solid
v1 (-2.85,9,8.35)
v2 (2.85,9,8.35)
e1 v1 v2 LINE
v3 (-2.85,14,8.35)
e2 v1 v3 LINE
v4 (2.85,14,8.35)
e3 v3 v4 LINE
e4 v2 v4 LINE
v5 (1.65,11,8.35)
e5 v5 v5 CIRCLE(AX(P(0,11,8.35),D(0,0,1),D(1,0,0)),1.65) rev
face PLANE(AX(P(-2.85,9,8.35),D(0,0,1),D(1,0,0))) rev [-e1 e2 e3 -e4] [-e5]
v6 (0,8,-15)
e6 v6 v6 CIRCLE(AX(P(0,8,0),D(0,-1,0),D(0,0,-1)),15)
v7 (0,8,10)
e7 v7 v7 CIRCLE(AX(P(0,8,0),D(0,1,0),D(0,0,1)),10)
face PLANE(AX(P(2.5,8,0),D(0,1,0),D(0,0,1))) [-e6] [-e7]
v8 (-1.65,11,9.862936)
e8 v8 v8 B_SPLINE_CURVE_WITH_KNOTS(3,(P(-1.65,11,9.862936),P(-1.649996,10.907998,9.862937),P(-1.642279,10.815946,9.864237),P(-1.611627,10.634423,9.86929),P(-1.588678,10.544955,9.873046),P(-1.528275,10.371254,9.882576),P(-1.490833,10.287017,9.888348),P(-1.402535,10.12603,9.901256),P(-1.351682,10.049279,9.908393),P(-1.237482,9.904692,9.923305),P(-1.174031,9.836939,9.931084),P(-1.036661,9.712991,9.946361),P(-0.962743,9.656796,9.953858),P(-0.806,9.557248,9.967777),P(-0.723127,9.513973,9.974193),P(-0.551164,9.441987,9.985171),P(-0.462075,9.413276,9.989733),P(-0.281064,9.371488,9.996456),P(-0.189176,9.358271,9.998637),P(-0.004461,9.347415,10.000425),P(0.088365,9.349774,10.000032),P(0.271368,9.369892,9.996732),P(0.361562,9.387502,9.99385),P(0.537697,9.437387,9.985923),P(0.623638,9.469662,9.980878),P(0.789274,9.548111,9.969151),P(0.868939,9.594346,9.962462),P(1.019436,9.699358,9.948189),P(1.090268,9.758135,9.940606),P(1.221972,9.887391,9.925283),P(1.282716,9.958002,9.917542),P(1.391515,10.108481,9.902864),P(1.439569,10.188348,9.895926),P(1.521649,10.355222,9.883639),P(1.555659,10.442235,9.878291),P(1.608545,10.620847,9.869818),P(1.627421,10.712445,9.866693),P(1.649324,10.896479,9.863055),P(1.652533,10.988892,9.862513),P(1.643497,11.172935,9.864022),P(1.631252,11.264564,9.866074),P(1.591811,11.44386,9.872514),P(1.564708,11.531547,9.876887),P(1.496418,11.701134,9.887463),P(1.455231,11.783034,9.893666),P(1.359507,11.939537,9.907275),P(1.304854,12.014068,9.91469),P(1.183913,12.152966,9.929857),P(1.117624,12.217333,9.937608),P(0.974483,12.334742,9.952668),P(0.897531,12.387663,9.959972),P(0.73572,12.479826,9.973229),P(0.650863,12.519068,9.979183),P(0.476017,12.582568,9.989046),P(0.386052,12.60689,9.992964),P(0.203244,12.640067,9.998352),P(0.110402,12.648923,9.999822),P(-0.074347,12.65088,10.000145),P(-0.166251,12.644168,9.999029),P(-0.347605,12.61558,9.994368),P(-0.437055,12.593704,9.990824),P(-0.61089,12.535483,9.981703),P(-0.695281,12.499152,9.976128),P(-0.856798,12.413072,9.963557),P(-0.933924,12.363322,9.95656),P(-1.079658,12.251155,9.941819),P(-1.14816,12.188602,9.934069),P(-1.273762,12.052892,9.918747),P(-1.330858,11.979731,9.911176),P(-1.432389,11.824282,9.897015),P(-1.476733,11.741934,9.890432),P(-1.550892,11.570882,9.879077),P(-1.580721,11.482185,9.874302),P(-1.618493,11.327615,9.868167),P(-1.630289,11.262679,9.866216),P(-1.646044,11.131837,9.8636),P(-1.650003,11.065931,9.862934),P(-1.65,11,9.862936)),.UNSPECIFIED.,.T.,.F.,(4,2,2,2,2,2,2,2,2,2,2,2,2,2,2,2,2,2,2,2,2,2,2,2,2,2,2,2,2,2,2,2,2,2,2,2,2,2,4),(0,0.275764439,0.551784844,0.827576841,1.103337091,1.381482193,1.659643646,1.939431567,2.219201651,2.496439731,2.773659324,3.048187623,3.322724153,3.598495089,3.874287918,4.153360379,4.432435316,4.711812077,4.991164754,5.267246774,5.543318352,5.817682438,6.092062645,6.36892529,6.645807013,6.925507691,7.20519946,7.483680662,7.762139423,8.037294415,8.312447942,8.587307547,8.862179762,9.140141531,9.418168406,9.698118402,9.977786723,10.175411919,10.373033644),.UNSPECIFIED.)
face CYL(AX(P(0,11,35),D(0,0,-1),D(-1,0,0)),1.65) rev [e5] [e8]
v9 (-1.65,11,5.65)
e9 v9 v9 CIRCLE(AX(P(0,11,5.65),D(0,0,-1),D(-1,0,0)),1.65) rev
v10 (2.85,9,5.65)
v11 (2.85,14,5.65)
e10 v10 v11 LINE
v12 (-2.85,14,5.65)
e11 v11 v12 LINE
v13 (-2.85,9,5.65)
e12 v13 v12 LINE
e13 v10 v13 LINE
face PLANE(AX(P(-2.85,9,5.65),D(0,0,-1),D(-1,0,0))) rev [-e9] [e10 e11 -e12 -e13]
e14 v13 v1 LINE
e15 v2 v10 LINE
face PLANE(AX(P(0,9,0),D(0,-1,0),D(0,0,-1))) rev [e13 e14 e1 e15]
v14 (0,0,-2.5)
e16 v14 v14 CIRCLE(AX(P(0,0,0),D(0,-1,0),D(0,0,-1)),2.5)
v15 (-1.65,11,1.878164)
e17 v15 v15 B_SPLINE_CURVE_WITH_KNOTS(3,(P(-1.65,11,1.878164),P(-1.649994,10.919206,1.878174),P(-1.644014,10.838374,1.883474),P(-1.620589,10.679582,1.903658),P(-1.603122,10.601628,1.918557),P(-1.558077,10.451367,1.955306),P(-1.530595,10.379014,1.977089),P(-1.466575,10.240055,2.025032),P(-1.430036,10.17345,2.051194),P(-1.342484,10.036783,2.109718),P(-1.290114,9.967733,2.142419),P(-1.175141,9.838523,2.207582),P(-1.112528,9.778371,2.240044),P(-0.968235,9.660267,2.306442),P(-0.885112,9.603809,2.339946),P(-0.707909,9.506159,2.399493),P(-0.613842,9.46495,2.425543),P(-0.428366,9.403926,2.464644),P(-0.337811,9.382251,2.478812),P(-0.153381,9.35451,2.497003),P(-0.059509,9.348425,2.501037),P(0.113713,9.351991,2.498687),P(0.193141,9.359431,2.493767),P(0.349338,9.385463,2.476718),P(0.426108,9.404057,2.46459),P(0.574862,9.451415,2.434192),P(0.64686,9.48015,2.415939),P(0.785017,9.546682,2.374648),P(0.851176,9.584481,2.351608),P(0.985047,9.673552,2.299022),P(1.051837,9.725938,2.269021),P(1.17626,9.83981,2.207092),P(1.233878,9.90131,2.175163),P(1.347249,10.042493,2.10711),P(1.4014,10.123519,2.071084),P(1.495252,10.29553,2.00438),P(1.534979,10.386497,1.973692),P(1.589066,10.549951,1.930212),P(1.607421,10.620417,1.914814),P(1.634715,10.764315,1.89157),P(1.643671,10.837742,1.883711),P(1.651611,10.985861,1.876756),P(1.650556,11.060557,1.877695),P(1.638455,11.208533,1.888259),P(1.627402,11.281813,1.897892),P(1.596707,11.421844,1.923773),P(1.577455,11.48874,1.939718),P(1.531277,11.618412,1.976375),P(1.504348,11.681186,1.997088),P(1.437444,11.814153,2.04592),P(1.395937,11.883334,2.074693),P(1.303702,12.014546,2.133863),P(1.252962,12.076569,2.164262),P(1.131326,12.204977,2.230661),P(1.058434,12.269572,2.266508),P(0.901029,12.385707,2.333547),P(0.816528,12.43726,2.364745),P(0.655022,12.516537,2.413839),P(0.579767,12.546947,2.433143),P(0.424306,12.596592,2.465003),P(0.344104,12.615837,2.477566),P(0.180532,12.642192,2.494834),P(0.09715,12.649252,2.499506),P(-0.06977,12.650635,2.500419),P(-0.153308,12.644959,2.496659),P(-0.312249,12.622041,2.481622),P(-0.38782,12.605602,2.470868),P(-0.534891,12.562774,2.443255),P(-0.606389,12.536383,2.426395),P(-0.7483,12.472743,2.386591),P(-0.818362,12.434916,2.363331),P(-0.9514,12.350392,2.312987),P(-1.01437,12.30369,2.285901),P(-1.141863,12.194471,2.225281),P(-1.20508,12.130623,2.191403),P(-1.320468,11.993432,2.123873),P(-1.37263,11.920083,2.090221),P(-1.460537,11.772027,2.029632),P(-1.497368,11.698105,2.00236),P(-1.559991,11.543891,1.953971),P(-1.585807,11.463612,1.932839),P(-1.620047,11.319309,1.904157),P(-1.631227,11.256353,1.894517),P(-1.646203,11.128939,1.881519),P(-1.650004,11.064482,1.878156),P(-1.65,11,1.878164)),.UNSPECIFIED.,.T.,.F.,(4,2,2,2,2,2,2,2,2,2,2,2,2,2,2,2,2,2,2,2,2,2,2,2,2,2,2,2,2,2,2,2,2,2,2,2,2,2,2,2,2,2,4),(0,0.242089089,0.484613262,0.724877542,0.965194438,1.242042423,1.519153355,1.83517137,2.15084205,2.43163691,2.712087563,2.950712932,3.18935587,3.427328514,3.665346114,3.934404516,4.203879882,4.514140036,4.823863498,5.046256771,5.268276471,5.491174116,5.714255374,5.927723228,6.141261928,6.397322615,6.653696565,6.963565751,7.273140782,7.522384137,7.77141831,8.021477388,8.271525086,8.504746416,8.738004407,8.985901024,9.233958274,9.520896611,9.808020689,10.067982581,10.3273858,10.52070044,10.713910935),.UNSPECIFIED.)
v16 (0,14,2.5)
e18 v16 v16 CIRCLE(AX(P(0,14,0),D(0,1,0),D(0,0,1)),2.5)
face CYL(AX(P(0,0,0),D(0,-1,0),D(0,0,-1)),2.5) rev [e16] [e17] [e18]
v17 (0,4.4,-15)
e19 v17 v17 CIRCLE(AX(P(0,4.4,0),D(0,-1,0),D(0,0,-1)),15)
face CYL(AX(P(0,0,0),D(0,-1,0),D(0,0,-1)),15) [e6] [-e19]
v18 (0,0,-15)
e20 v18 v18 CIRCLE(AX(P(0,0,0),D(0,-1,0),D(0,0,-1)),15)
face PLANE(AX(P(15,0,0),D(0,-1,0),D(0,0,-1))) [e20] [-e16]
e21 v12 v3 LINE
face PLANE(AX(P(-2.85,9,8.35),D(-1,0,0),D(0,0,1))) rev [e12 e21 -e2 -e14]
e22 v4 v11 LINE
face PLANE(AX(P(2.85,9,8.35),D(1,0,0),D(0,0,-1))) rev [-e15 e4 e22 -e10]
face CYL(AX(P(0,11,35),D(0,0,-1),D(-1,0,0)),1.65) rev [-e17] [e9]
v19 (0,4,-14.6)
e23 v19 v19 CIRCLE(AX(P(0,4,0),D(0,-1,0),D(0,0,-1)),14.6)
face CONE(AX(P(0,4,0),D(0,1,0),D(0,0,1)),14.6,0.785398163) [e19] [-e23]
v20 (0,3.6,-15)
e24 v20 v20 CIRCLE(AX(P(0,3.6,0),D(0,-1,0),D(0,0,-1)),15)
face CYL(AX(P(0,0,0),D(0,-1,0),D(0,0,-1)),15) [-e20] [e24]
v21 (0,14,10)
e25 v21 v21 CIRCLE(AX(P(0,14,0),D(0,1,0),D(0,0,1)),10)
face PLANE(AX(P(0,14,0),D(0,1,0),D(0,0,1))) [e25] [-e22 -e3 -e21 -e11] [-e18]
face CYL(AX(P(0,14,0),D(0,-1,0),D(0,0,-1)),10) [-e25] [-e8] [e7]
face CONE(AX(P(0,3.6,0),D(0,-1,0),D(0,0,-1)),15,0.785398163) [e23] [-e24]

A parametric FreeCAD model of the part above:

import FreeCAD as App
import Part
import Sketcher
Q = App.Units.Quantity


def add_polygon(sketch, points):
    """Adds a closed chain of lines whose ends are joined by coincident constraints."""
    first, n = sketch.GeometryCount, len(points)
    for a, b in zip(points, points[1:] + points[:1]):
        sketch.addGeometry(Part.LineSegment(App.Vector(*a, 0), App.Vector(*b, 0)), False)
    for i in range(n):
        sketch.addConstraint(Sketcher.Constraint("Coincident", first + i, 2, first + (i + 1) % n, 1))

doc = App.newDocument("Part")
body = doc.addObject("PartDesign::Body", "Body")

# Sketch on XY plane
sketch1 = doc.addObject("Sketcher::SketchObject", "Sketch")
body.addObject(sketch1)
sketch1.AttachmentSupport = (doc.XY_Plane, [""])
sketch1.MapMode = "FlatFace"
add_polygon(sketch1, [(15, 8), (2.5, 8), (2.5, 0), (15, 0), (15, 3.6), (14.6, 4), (15, 4.4)])  # lines 0-6
sketch1.addConstraint(Sketcher.Constraint("Horizontal", 0))
sketch1.addConstraint(Sketcher.Constraint("Vertical", 1))
sketch1.addConstraint(Sketcher.Constraint("Horizontal", 2))
sketch1.addConstraint(Sketcher.Constraint("Vertical", 3))
sketch1.addConstraint(Sketcher.Constraint("Vertical", 6))
sketch1.addConstraint(Sketcher.Constraint("PointOnObject", 1, 2, -1))
sketch1.addConstraint(Sketcher.Constraint("Perpendicular", 4, 5))
sketch1.addConstraint(Sketcher.Constraint("Vertical", 3, 2, 5, 2))
sketch1.addConstraint(Sketcher.Constraint("Equal", 3, 6))
sketch1.addConstraint(Sketcher.Constraint("Equal", 4, 5))
sketch1.addConstraint(Sketcher.Constraint("DistanceY", 1, 2, 1, 1, Q("8 mm")))
sketch1.addConstraint(Sketcher.Constraint("DistanceX", 0, 2, 0, 1, Q("12.5 mm")))
sketch1.addConstraint(Sketcher.Constraint("DistanceY", 3, 1, 3, 2, Q("3.6 mm")))
sketch1.addConstraint(Sketcher.Constraint("DistanceX", -1, 1, 2, 2, Q("15 mm")))
revolution = doc.addObject("PartDesign::Revolution", "Revolution")
body.addObject(revolution)
revolution.Profile = sketch1
revolution.ReferenceAxis = (sketch1, ["V_Axis"])
revolution.Angle = 360

# Sketch on XZ plane
sketch2 = doc.addObject("Sketcher::SketchObject", "Sketch001")
body.addObject(sketch2)
sketch2.AttachmentSupport = (doc.XZ_Plane, [""])
sketch2.MapMode = "FlatFace"
sketch2.AttachmentOffset = App.Placement(App.Vector(0, 0, -14), App.Rotation())
sketch2.addGeometry(Part.Circle(App.Vector(0, 0, 0), App.Vector(0, 0, 1), 10), False)
sketch2.addGeometry(Part.Circle(App.Vector(0, 0, 0), App.Vector(0, 0, 1), 2.5), False)
sketch2.addConstraint(Sketcher.Constraint("Coincident", 0, 3, -1, 1))
sketch2.addConstraint(Sketcher.Constraint("Coincident", 1, 3, -1, 1))
sketch2.addConstraint(Sketcher.Constraint("Diameter", 0, Q("20 mm")))
sketch2.addConstraint(Sketcher.Constraint("Diameter", 1, Q("5 mm")))
pad1 = doc.addObject("PartDesign::Pad", "Pad")
body.addObject(pad1)
pad1.Profile = sketch2
pad1.Length = 6

# Sketch on XZ plane
sketch3 = doc.addObject("Sketcher::SketchObject", "Sketch002")
body.addObject(sketch3)
sketch3.AttachmentSupport = (doc.XZ_Plane, [""])
sketch3.MapMode = "FlatFace"
sketch3.AttachmentOffset = App.Placement(App.Vector(0, 0, -14), App.Rotation())
add_polygon(sketch3, [(-2.9, 5.7), (-2.9, 8.3), (2.9, 8.3), (2.9, 5.7)])  # lines 0-3
sketch3.addConstraint(Sketcher.Constraint("Vertical", 0))
sketch3.addConstraint(Sketcher.Constraint("Horizontal", 1))
sketch3.addConstraint(Sketcher.Constraint("Vertical", 2))
sketch3.addConstraint(Sketcher.Constraint("Horizontal", 3))
sketch3.addConstraint(Sketcher.Constraint("DistanceX", 1, 1, 1, 2, Q("5.7 mm")))
sketch3.addConstraint(Sketcher.Constraint("DistanceY", 0, 1, 0, 2, Q("2.7 mm")))
sketch3.addConstraint(Sketcher.Constraint("DistanceX", 0, 2, -1, 1, Q("2.85 mm")))
sketch3.addConstraint(Sketcher.Constraint("DistanceY", -1, 1, 0, 2, Q("8.35 mm")))
pocket1 = doc.addObject("PartDesign::Pocket", "Pocket")
body.addObject(pocket1)
pocket1.Profile = sketch3
pocket1.Length = 5
pocket1.Reversed = True

# Sketch on XY plane
sketch4 = doc.addObject("Sketcher::SketchObject", "Sketch003")
body.addObject(sketch4)
sketch4.AttachmentSupport = (doc.XY_Plane, [""])
sketch4.MapMode = "FlatFace"
sketch4.addGeometry(Part.Circle(App.Vector(0, 11, 0), App.Vector(0, 0, 1), 1.6), False)
sketch4.addConstraint(Sketcher.Constraint("PointOnObject", 0, 3, -2))
sketch4.addConstraint(Sketcher.Constraint("Diameter", 0, Q("3.3 mm")))
sketch4.addConstraint(Sketcher.Constraint("DistanceY", -1, 1, 0, 3, Q("11 mm")))
pocket2 = doc.addObject("PartDesign::Pocket", "Pocket001")
body.addObject(pocket2)
pocket2.Profile = sketch4
pocket2.Length = 35
pocket2.Reversed = True

doc.recompute()
